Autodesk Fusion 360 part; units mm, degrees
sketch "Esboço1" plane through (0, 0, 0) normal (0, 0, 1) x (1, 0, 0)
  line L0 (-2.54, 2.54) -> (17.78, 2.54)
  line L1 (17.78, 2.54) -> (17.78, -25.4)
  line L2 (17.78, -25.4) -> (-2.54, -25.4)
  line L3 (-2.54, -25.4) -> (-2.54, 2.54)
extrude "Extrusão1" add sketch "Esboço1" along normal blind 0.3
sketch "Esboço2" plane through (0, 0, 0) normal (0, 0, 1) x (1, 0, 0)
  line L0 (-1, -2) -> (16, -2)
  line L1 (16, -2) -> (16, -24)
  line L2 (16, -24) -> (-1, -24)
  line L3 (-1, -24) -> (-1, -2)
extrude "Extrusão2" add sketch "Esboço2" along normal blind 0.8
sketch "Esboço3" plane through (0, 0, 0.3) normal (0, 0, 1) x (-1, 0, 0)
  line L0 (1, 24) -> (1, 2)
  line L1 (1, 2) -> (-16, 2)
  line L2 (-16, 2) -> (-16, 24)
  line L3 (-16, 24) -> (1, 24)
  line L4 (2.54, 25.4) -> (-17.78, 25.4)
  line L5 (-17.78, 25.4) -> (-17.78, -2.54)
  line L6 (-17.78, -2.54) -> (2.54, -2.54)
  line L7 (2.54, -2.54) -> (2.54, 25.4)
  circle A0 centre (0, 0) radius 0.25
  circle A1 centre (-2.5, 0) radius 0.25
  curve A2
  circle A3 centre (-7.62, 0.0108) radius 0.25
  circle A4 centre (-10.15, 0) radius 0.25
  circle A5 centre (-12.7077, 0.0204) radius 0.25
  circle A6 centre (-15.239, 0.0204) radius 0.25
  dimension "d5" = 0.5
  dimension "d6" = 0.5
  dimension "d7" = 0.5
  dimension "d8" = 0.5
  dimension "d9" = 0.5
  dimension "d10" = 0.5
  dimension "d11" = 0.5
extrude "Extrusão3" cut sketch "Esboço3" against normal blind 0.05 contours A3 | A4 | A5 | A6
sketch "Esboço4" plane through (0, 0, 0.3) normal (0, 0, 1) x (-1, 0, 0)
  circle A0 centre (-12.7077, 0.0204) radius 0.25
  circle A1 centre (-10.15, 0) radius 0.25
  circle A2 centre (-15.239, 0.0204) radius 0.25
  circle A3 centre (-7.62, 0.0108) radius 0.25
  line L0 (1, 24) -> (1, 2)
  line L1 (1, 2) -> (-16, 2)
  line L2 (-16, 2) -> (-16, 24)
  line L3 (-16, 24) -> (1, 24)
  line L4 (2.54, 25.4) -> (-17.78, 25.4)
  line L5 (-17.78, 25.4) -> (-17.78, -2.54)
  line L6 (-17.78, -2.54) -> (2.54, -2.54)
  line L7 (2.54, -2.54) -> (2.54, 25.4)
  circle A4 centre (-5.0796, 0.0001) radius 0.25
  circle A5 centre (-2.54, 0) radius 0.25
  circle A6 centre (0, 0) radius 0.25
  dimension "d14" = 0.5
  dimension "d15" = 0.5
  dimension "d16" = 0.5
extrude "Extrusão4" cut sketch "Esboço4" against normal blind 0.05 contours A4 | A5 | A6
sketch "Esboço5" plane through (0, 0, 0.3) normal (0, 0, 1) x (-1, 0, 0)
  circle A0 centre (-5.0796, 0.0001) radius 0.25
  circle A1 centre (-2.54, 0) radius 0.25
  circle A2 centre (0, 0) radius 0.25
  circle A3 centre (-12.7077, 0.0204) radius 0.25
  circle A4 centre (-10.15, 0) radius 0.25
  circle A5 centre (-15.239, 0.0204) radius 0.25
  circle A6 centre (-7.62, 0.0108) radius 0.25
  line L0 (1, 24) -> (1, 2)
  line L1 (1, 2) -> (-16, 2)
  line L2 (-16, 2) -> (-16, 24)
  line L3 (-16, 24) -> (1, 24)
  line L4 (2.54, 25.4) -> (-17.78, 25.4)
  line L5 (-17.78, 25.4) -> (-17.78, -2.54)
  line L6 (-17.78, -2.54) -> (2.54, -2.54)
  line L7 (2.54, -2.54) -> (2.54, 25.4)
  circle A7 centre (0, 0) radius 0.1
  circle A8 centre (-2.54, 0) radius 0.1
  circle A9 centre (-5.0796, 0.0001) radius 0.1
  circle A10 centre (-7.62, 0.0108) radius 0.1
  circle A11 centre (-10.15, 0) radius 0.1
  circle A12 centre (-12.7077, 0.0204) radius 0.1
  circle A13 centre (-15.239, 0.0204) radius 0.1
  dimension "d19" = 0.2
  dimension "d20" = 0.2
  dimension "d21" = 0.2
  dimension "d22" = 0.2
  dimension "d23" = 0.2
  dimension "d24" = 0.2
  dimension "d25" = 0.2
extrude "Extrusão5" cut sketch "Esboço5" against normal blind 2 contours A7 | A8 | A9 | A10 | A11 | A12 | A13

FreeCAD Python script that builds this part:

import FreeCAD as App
import Part
import Sketcher

V = App.Vector
Q = App.Units.Quantity

doc = App.newDocument("Part")
body = doc.addObject("PartDesign::Body", "Body")

sketch1 = body.newObject("Sketcher::SketchObject", "Sketch")
sketch1.AttachmentSupport = (doc.getObject("XY_Plane"), [""])
sketch1.MapMode = "FlatFace"
sketch1.addGeometry(Part.LineSegment(V(17.78, 2.54, 0), V(-2.54, 2.54, 0)), False)
sketch1.addGeometry(Part.LineSegment(V(-2.54, 2.54, 0), V(-2.54, -25.4, 0)), False)
sketch1.addGeometry(Part.LineSegment(V(-2.54, -25.4, 0), V(17.78, -25.4, 0)), False)
sketch1.addGeometry(Part.LineSegment(V(17.78, -25.4, 0), V(17.78, 2.54, 0)), False)
sketch1.addConstraint(Sketcher.Constraint("Coincident", 0, 2, 1, 1))
sketch1.addConstraint(Sketcher.Constraint("Coincident", 1, 2, 2, 1))
sketch1.addConstraint(Sketcher.Constraint("Coincident", 2, 2, 3, 1))
sketch1.addConstraint(Sketcher.Constraint("Coincident", 3, 2, 0, 1))
sketch1.addConstraint(Sketcher.Constraint("Horizontal", 0))
sketch1.addConstraint(Sketcher.Constraint("Vertical", 1))
sketch1.addConstraint(Sketcher.Constraint("Horizontal", 2))
sketch1.addConstraint(Sketcher.Constraint("Vertical", 3))
sketch1.addConstraint(Sketcher.Constraint("DistanceX", 0, 2, 0, 1, Q("20.32 mm")))
sketch1.addConstraint(Sketcher.Constraint("DistanceY", 1, 2, 1, 1, Q("27.94 mm")))
sketch1.addConstraint(Sketcher.Constraint("DistanceY", 1, 2, -1, 1, Q("25.4 mm")))
sketch1.addConstraint(Sketcher.Constraint("DistanceX", 0, 2, -1, 1, Q("2.54 mm")))
pad1 = body.newObject("PartDesign::Pad", "Pad")
pad1.Profile = sketch1
pad1.Length = 0.3

sketch2 = body.newObject("Sketcher::SketchObject", "Sketch001")
sketch2.AttachmentSupport = (doc.getObject("XY_Plane"), [""])
sketch2.MapMode = "FlatFace"
sketch2.addGeometry(Part.LineSegment(V(16, -2, 0), V(-1, -2, 0)), False)
sketch2.addGeometry(Part.LineSegment(V(-1, -2, 0), V(-1, -24, 0)), False)
sketch2.addGeometry(Part.LineSegment(V(-1, -24, 0), V(16, -24, 0)), False)
sketch2.addGeometry(Part.LineSegment(V(16, -24, 0), V(16, -2, 0)), False)
sketch2.addConstraint(Sketcher.Constraint("Coincident", 0, 2, 1, 1))
sketch2.addConstraint(Sketcher.Constraint("Coincident", 1, 2, 2, 1))
sketch2.addConstraint(Sketcher.Constraint("Coincident", 2, 2, 3, 1))
sketch2.addConstraint(Sketcher.Constraint("Coincident", 3, 2, 0, 1))
sketch2.addConstraint(Sketcher.Constraint("Horizontal", 0))
sketch2.addConstraint(Sketcher.Constraint("Vertical", 1))
sketch2.addConstraint(Sketcher.Constraint("Horizontal", 2))
sketch2.addConstraint(Sketcher.Constraint("Vertical", 3))
sketch2.addConstraint(Sketcher.Constraint("DistanceX", 0, 2, 0, 1, Q("17 mm")))
sketch2.addConstraint(Sketcher.Constraint("DistanceY", 1, 2, 1, 1, Q("22 mm")))
sketch2.addConstraint(Sketcher.Constraint("DistanceX", 0, 2, -1, 1, Q("1 mm")))
sketch2.addConstraint(Sketcher.Constraint("DistanceY", 0, 2, -1, 1, Q("2 mm")))
pad2 = body.newObject("PartDesign::Pad", "Pad001")
pad2.Profile = sketch2
pad2.Length = 0.8

sketch3 = body.newObject("Sketcher::SketchObject", "Sketch002")
sketch3.AttachmentSupport = (doc.getObject("XY_Plane"), [""])
sketch3.MapMode = "FlatFace"
sketch3.AttachmentOffset = App.Placement(V(0, 0, 0.3), App.Rotation())
sketch3.addGeometry(Part.Circle(V(7.62, -0.0108, 0), V(0, 0, 1), 0.25), False)
sketch3.addGeometry(Part.Circle(V(10.15, 0, 0), V(0, 0, 1), 0.25), False)
sketch3.addGeometry(Part.Circle(V(12.7077, -0.0204, 0), V(0, 0, 1), 0.25), False)
sketch3.addGeometry(Part.Circle(V(15.239, -0.0204, 0), V(0, 0, 1), 0.25), False)
sketch3.addConstraint(Sketcher.Constraint("Equal", 0, 1))
sketch3.addConstraint(Sketcher.Constraint("Equal", 1, 2))
sketch3.addConstraint(Sketcher.Constraint("Equal", 2, 3))
sketch3.addConstraint(Sketcher.Constraint("PointOnObject", 1, 3, -1))
sketch3.addConstraint(Sketcher.Constraint("Horizontal", 2, 3, 3, 3))
sketch3.addConstraint(Sketcher.Constraint("Diameter", 0, Q("0.5 mm")))
sketch3.addConstraint(Sketcher.Constraint("DistanceX", -1, 1, 0, 3, Q("7.62 mm")))
sketch3.addConstraint(Sketcher.Constraint("DistanceX", -1, 1, 1, 3, Q("10.15 mm")))
sketch3.addConstraint(Sketcher.Constraint("DistanceX", -1, 1, 3, 3, Q("15.239 mm")))
sketch3.addConstraint(Sketcher.Constraint("DistanceY", 0, 3, -1, 1, Q("0.0108 mm")))
sketch3.addConstraint(Sketcher.Constraint("DistanceX", -1, 1, 2, 3, Q("12.7077 mm")))
sketch3.addConstraint(Sketcher.Constraint("DistanceY", 2, 3, -1, 1, Q("0.0204 mm")))
pocket1 = body.newObject("PartDesign::Pocket", "Pocket")
pocket1.Profile = sketch3
pocket1.Length = 0.05

sketch4 = body.newObject("Sketcher::SketchObject", "Sketch003")
sketch4.AttachmentSupport = (doc.getObject("XY_Plane"), [""])
sketch4.MapMode = "FlatFace"
sketch4.AttachmentOffset = App.Placement(V(0, 0, 0.3), App.Rotation())
sketch4.addGeometry(Part.Circle(V(5.0796, -0.0001, 0), V(0, 0, 1), 0.25), False)
sketch4.addGeometry(Part.Circle(V(2.54, 0, 0), V(0, 0, 1), 0.25), False)
sketch4.addGeometry(Part.Circle(V(0, 0, 0), V(0, 0, 1), 0.25), False)
sketch4.addConstraint(Sketcher.Constraint("Coincident", 2, 3, -1, 1))
sketch4.addConstraint(Sketcher.Constraint("Equal", 0, 1))
sketch4.addConstraint(Sketcher.Constraint("Equal", 1, 2))
sketch4.addConstraint(Sketcher.Constraint("PointOnObject", 0, 3, -1))
sketch4.addConstraint(Sketcher.Constraint("PointOnObject", 1, 3, -1))
sketch4.addConstraint(Sketcher.Constraint("Diameter", 0, Q("0.5 mm")))
sketch4.addConstraint(Sketcher.Constraint("DistanceX", -1, 1, 1, 3, Q("2.54 mm")))
sketch4.addConstraint(Sketcher.Constraint("DistanceX", -1, 1, 0, 3, Q("5.0796 mm")))
pocket2 = body.newObject("PartDesign::Pocket", "Pocket001")
pocket2.Profile = sketch4
pocket2.Length = 0.05

sketch5 = body.newObject("Sketcher::SketchObject", "Sketch004")
sketch5.AttachmentSupport = (doc.getObject("XY_Plane"), [""])
sketch5.MapMode = "FlatFace"
sketch5.AttachmentOffset = App.Placement(V(0, 0, 0.3), App.Rotation())
sketch5.addGeometry(Part.Circle(V(0, 0, 0), V(0, 0, 1), 0.1), False)
sketch5.addGeometry(Part.Circle(V(2.54, 0, 0), V(0, 0, 1), 0.1), False)
sketch5.addGeometry(Part.Circle(V(5.0796, -0.0001, 0), V(0, 0, 1), 0.1), False)
sketch5.addGeometry(Part.Circle(V(7.62, -0.0108, 0), V(0, 0, 1), 0.1), False)
sketch5.addGeometry(Part.Circle(V(10.15, 0, 0), V(0, 0, 1), 0.1), False)
sketch5.addGeometry(Part.Circle(V(12.7077, -0.0204, 0), V(0, 0, 1), 0.1), False)
sketch5.addGeometry(Part.Circle(V(15.239, -0.0204, 0), V(0, 0, 1), 0.1), False)
sketch5.addConstraint(Sketcher.Constraint("Coincident", 0, 3, -1, 1))
sketch5.addConstraint(Sketcher.Constraint("Equal", 0, 1))
sketch5.addConstraint(Sketcher.Constraint("Equal", 1, 2))
sketch5.addConstraint(Sketcher.Constraint("Equal", 2, 3))
sketch5.addConstraint(Sketcher.Constraint("Equal", 3, 4))
sketch5.addConstraint(Sketcher.Constraint("Equal", 4, 5))
sketch5.addConstraint(Sketcher.Constraint("Equal", 5, 6))
sketch5.addConstraint(Sketcher.Constraint("PointOnObject", 1, 3, -1))
sketch5.addConstraint(Sketcher.Constraint("PointOnObject", 2, 3, -1))
sketch5.addConstraint(Sketcher.Constraint("PointOnObject", 4, 3, -1))
sketch5.addConstraint(Sketcher.Constraint("Horizontal", 5, 3, 6, 3))
sketch5.addConstraint(Sketcher.Constraint("Diameter", 0, Q("0.2 mm")))
sketch5.addConstraint(Sketcher.Constraint("DistanceX", -1, 1, 1, 3, Q("2.54 mm")))
sketch5.addConstraint(Sketcher.Constraint("DistanceX", -1, 1, 3, 3, Q("7.62 mm")))
sketch5.addConstraint(Sketcher.Constraint("DistanceX", -1, 1, 4, 3, Q("10.15 mm")))
sketch5.addConstraint(Sketcher.Constraint("DistanceX", -1, 1, 6, 3, Q("15.239 mm")))
sketch5.addConstraint(Sketcher.Constraint("DistanceX", 2, 3, 5, 3, Q("7.628 mm")))
sketch5.addConstraint(Sketcher.Constraint("DistanceX", -1, 1, 2, 3, Q("5.0796 mm")))
sketch5.addConstraint(Sketcher.Constraint("DistanceY", 3, 3, -1, 1, Q("0.0108 mm")))
sketch5.addConstraint(Sketcher.Constraint("DistanceY", 5, 3, -1, 1, Q("0.0204 mm")))
pocket3 = body.newObject("PartDesign::Pocket", "Pocket002")
pocket3.Profile = sketch5
pocket3.Length = 2

doc.recompute()
